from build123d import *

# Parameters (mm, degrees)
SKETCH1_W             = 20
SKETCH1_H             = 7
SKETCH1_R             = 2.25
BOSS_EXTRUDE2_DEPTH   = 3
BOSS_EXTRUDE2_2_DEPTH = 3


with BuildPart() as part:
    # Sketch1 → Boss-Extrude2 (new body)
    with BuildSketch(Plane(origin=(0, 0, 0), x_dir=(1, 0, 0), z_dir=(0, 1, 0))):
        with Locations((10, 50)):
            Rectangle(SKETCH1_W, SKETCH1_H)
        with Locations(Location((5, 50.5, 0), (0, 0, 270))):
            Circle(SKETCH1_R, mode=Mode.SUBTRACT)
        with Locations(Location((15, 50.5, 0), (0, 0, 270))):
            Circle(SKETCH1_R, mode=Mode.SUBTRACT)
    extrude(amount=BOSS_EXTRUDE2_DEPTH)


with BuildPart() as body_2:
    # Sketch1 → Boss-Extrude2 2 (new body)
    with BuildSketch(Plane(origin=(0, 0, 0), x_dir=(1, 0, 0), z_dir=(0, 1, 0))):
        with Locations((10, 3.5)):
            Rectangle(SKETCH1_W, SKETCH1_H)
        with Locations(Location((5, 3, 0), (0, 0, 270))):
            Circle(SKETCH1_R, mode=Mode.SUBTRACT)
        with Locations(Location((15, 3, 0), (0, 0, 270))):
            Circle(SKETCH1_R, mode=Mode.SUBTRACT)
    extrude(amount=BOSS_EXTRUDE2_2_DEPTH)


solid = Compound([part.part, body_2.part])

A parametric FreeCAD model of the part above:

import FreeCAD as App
import Part
import Sketcher

V = App.Vector
Q = App.Units.Quantity


def add_polygon(sketch, points):
    """Adds a closed chain of lines whose ends are joined by coincident constraints."""
    first, n = sketch.GeometryCount, len(points)
    for a, b in zip(points, points[1:] + points[:1]):
        sketch.addGeometry(Part.LineSegment(App.Vector(*a, 0), App.Vector(*b, 0)), False)
    for i in range(n):
        sketch.addConstraint(Sketcher.Constraint("Coincident", first + i, 2, first + (i + 1) % n, 1))

doc = App.newDocument("Part")
body = doc.addObject("PartDesign::Body", "Body")

# Sketch on XZ plane
sketch1 = body.newObject("Sketcher::SketchObject", "Sketch")
sketch1.AttachmentSupport = (doc.getObject("XZ_Plane"), [""])
sketch1.MapMode = "FlatFace"
add_polygon(sketch1, [(0, -53.5), (0, -46.5), (20, -46.5), (20, -53.5)])  # lines 0-3
sketch1.addGeometry(Part.Circle(V(5, -50.5, 0), V(0, 0, 1), 2.25), False)  # 4
sketch1.addGeometry(Part.Circle(V(15, -50.5, 0), V(0, 0, 1), 2.25), False)  # 5
sketch1.addConstraint(Sketcher.Constraint("Vertical", 0))
sketch1.addConstraint(Sketcher.Constraint("Horizontal", 1))
sketch1.addConstraint(Sketcher.Constraint("Vertical", 2))
sketch1.addConstraint(Sketcher.Constraint("Horizontal", 3))
sketch1.addConstraint(Sketcher.Constraint("Equal", 4, 5))
sketch1.addConstraint(Sketcher.Constraint("PointOnObject", 0, 2, -2))
sketch1.addConstraint(Sketcher.Constraint("Horizontal", 4, 3, 5, 3))
sketch1.addConstraint(Sketcher.Constraint("Diameter", 4, Q("4.5 mm")))
sketch1.addConstraint(Sketcher.Constraint("DistanceX", 1, 1, 1, 2, Q("20 mm")))
sketch1.addConstraint(Sketcher.Constraint("DistanceY", 0, 1, 0, 2, Q("7 mm")))
sketch1.addConstraint(Sketcher.Constraint("DistanceX", -1, 1, 4, 3, Q("5 mm")))
sketch1.addConstraint(Sketcher.Constraint("DistanceX", -1, 1, 5, 3, Q("15 mm")))
sketch1.addConstraint(Sketcher.Constraint("DistanceY", 4, 3, 0, 2, Q("4 mm")))
sketch1.addConstraint(Sketcher.Constraint("DistanceY", 4, 3, -1, 1, Q("50.5 mm")))
pad1 = body.newObject("PartDesign::Pad", "Pad")
pad1.Profile = sketch1
pad1.Length = 3
pad1.Reversed = True
body2 = doc.addObject("PartDesign::Body", "Body001")

# Sketch on XZ plane
sketch2 = body2.newObject("Sketcher::SketchObject", "Sketch001")
sketch2.AttachmentSupport = (doc.getObject("XZ_Plane001"), [""])
sketch2.MapMode = "FlatFace"
add_polygon(sketch2, [(0, -7), (0, 0), (20, 0), (20, -7)])  # lines 0-3
sketch2.addGeometry(Part.Circle(V(5, -3, 0), V(0, 0, 1), 2.25), False)  # 4
sketch2.addGeometry(Part.Circle(V(15, -3, 0), V(0, 0, 1), 2.25), False)  # 5
sketch2.addConstraint(Sketcher.Constraint("Vertical", 0))
sketch2.addConstraint(Sketcher.Constraint("Horizontal", 1))
sketch2.addConstraint(Sketcher.Constraint("Vertical", 2))
sketch2.addConstraint(Sketcher.Constraint("Horizontal", 3))
sketch2.addConstraint(Sketcher.Constraint("Coincident", 0, 2, -1, 1))
sketch2.addConstraint(Sketcher.Constraint("Equal", 4, 5))
sketch2.addConstraint(Sketcher.Constraint("Horizontal", 4, 3, 5, 3))
sketch2.addConstraint(Sketcher.Constraint("Diameter", 4, Q("4.5 mm")))
sketch2.addConstraint(Sketcher.Constraint("DistanceX", 1, 1, 1, 2, Q("20 mm")))
sketch2.addConstraint(Sketcher.Constraint("DistanceY", 0, 1, 0, 2, Q("7 mm")))
sketch2.addConstraint(Sketcher.Constraint("DistanceX", -1, 1, 4, 3, Q("5 mm")))
sketch2.addConstraint(Sketcher.Constraint("DistanceY", 4, 3, -1, 1, Q("3 mm")))
sketch2.addConstraint(Sketcher.Constraint("DistanceX", -1, 1, 5, 3, Q("15 mm")))
pad2 = body2.newObject("PartDesign::Pad", "Pad001")
pad2.Profile = sketch2
pad2.Length = 3
pad2.Reversed = True

doc.recompute()
